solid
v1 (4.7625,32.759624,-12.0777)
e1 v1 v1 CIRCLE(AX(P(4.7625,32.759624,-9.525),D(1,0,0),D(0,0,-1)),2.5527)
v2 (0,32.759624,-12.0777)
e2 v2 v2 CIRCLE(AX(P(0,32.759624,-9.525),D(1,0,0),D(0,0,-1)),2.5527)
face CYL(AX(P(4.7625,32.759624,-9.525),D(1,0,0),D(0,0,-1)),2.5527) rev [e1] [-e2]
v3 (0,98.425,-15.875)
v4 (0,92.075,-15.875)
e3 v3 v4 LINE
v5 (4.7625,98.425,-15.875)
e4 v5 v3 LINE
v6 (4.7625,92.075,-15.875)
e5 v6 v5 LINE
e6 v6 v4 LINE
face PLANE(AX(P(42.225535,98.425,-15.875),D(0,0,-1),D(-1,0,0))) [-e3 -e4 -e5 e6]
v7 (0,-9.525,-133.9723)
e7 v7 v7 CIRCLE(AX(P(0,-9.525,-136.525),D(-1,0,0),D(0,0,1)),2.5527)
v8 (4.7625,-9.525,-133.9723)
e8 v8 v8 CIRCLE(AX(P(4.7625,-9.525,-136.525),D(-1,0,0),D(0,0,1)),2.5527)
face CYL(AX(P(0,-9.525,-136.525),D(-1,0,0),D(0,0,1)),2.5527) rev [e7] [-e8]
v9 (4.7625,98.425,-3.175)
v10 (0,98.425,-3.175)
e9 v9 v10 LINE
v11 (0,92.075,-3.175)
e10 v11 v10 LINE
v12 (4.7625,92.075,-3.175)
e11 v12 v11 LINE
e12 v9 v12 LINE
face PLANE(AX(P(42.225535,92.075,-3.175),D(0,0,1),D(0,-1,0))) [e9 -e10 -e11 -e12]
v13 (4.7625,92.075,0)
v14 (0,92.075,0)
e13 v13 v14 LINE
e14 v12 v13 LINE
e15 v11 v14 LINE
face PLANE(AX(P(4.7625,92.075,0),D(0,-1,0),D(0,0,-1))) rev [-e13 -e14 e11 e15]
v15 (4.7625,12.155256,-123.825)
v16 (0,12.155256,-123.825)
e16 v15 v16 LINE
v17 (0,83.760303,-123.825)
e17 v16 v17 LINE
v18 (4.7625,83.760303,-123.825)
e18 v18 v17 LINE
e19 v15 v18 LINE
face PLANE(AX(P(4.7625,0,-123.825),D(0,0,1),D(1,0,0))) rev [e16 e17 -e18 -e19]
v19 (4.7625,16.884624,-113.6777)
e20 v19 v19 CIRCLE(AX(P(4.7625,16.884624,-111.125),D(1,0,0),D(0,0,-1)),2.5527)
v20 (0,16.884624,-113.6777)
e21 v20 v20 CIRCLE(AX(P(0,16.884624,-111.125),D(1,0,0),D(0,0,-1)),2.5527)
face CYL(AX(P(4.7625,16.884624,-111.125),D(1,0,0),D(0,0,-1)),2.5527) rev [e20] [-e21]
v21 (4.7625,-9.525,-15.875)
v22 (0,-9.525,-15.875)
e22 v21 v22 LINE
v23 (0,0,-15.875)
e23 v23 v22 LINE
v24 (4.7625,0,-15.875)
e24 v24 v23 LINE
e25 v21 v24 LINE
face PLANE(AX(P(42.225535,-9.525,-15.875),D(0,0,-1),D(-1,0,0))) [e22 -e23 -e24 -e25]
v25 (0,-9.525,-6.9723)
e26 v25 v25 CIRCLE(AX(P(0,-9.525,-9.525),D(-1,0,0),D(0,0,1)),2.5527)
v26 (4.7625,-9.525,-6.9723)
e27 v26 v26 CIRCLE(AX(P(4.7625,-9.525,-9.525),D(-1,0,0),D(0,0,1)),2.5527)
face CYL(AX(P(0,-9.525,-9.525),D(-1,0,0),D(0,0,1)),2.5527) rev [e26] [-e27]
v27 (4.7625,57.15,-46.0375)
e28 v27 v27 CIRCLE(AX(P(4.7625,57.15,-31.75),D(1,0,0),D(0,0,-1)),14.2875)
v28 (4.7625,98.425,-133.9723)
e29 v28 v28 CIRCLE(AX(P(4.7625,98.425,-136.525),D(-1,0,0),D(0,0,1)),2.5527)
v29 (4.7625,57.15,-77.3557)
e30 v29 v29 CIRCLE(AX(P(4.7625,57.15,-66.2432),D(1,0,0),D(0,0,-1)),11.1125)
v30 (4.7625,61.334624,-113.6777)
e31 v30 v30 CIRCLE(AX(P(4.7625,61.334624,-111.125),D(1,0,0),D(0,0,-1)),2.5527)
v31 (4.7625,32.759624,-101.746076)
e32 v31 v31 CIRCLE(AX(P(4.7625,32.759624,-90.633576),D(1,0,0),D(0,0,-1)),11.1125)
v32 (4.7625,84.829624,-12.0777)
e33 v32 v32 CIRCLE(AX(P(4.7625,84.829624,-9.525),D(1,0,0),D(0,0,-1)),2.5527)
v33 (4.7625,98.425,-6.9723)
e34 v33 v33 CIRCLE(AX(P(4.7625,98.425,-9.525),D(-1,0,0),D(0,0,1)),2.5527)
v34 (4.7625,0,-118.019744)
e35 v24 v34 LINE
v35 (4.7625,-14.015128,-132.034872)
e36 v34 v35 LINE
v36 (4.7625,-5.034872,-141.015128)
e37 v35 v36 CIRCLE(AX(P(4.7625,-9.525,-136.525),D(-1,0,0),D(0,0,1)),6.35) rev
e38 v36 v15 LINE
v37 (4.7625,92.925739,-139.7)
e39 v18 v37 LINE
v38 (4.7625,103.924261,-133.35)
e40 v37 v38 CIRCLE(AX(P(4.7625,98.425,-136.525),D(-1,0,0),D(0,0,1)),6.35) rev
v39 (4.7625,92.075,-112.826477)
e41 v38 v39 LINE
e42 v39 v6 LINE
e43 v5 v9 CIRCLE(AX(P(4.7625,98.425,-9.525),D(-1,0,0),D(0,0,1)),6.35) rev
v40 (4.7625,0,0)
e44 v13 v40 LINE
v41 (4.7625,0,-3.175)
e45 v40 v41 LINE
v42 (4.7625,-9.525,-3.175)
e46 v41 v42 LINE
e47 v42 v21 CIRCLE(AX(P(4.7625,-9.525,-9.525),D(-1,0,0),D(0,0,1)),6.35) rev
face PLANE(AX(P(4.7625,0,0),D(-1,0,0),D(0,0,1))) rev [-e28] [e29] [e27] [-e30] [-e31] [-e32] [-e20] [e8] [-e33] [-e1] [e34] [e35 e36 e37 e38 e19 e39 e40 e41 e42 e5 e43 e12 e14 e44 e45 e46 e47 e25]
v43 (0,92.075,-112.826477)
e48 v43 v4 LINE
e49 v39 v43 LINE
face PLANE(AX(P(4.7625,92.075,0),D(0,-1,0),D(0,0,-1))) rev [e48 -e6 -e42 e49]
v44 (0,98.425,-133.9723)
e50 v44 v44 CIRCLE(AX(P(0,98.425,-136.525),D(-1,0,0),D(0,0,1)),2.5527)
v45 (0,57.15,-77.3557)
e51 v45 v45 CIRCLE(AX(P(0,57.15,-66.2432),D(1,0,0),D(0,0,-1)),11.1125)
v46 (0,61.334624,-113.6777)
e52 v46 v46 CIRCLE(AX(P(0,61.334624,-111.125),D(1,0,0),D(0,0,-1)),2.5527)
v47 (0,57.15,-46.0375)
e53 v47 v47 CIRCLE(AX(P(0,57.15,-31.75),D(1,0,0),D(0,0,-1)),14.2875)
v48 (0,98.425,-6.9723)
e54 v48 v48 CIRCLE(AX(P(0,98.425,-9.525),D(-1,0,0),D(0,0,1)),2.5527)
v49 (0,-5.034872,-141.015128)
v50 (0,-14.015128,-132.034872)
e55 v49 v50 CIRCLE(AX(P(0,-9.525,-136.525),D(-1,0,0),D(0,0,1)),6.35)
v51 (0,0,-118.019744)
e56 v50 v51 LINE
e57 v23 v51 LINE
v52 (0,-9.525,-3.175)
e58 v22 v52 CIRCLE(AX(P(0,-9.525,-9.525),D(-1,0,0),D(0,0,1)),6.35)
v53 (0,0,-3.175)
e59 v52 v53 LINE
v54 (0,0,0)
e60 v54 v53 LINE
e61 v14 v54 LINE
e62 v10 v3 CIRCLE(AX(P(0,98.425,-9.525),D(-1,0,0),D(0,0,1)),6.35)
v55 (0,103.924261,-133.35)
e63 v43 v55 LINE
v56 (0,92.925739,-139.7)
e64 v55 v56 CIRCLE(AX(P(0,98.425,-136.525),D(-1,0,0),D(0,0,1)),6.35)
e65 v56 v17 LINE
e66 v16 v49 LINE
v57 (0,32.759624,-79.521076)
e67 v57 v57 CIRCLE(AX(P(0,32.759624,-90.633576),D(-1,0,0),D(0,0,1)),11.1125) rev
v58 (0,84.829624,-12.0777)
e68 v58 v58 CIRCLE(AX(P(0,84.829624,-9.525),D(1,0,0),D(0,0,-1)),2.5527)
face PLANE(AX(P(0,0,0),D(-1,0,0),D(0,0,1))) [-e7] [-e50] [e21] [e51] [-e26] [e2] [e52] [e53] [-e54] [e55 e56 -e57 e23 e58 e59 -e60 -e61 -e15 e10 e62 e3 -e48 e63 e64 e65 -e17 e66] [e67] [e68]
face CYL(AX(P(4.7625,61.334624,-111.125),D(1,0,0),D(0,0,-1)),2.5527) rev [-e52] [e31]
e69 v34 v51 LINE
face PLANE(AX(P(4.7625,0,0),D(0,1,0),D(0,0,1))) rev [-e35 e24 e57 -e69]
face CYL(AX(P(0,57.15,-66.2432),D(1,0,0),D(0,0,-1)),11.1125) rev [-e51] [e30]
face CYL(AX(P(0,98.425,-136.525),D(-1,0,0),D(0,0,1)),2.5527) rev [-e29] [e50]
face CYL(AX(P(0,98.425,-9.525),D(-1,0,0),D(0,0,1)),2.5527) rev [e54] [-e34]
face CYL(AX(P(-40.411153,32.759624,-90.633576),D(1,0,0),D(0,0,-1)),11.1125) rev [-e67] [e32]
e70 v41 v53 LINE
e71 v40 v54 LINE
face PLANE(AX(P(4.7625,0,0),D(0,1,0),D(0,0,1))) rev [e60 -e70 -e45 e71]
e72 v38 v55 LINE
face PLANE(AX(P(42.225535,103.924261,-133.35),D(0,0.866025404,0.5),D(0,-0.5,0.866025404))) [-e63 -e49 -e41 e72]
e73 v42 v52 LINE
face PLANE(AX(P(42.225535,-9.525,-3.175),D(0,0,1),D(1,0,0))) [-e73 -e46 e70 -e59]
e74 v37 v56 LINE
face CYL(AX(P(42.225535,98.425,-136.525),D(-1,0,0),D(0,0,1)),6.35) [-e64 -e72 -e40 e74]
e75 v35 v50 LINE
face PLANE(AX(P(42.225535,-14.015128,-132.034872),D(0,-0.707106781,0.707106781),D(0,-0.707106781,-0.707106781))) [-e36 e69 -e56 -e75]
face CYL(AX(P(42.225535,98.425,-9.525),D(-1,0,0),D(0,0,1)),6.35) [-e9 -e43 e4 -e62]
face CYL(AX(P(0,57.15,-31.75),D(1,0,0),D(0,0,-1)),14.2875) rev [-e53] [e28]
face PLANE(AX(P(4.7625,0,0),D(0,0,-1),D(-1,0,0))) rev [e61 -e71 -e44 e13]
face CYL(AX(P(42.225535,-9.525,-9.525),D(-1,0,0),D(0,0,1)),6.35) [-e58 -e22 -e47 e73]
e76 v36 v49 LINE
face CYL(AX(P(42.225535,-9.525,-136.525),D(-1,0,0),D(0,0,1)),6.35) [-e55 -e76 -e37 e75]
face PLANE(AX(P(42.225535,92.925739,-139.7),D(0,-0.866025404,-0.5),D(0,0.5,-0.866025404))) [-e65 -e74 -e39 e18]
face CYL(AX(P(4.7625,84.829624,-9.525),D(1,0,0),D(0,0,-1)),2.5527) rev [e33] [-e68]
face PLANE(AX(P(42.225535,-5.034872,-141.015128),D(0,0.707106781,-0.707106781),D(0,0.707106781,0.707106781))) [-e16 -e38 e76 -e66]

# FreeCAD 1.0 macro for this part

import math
import FreeCAD as App
import Part
import Sketcher

V = App.Vector
Q = App.Units.Quantity


def add_polygon(sketch, points):
    """Adds a closed chain of lines whose ends are joined by coincident constraints."""
    first, n = sketch.GeometryCount, len(points)
    for a, b in zip(points, points[1:] + points[:1]):
        sketch.addGeometry(Part.LineSegment(App.Vector(*a, 0), App.Vector(*b, 0)), False)
    for i in range(n):
        sketch.addConstraint(Sketcher.Constraint("Coincident", first + i, 2, first + (i + 1) % n, 1))

doc = App.newDocument("Part")
body = doc.addObject("PartDesign::Body", "Body")

# Sketch on YZ plane
sketch1 = body.newObject("Sketcher::SketchObject", "Sketch")
sketch1.AttachmentSupport = (doc.getObject("YZ_Plane"), [""])
sketch1.MapMode = "FlatFace"
add_polygon(sketch1, [(92.075, 0), (0, 0), (0, -123.825), (92.075, -123.825)])  # lines 0-3
sketch1.addConstraint(Sketcher.Constraint("Horizontal", 0))
sketch1.addConstraint(Sketcher.Constraint("Vertical", 1))
sketch1.addConstraint(Sketcher.Constraint("Horizontal", 2))
sketch1.addConstraint(Sketcher.Constraint("Vertical", 3))
sketch1.addConstraint(Sketcher.Constraint("Coincident", 0, 2, -1, 1))
sketch1.addConstraint(Sketcher.Constraint("DistanceX", 0, 2, 0, 1, Q("3.625 in")))
sketch1.addConstraint(Sketcher.Constraint("DistanceY", 1, 2, 1, 1, Q("4.875 in")))
pad1 = body.newObject("PartDesign::Pad", "Pad")
pad1.Profile = sketch1
pad1.Length = Q("0.1875 in")

# Sketch on YZ plane
sketch2 = body.newObject("Sketcher::SketchObject", "Sketch001")
sketch2.AttachmentSupport = (doc.getObject("YZ_Plane"), [""])
sketch2.MapMode = "FlatFace"
sketch2.AttachmentOffset = App.Placement(V(0, 0, 0.1875 * 25.4), App.Rotation())
sketch2.addGeometry(Part.Circle(V(57.15, -66.2432, 0), V(0, 0, 1), 11.1125), False)
sketch2.addGeometry(Part.Circle(V(57.15, -31.75, 0), V(0, 0, 1), 11.1125), False)
sketch2.addGeometry(Part.Circle(V(32.759624, -90.633576, 0), V(0, 0, 1), 14.2875), False)
sketch2.addConstraint(Sketcher.Constraint("Equal", 0, 1))
sketch2.addConstraint(Sketcher.Constraint("Vertical", 0, 3, 1, 3))
sketch2.addConstraint(Sketcher.Constraint("Diameter", 0, Q("0.875 in")))
sketch2.addConstraint(Sketcher.Constraint("Diameter", 2, Q("1.125 in")))
sketch2.addConstraint(Sketcher.Constraint("DistanceX", -1, 1, 0, 3, Q("2.25 in")))
sketch2.addConstraint(Sketcher.Constraint("DistanceY", 1, 3, -1, 1, Q("1.25 in")))
sketch2.addConstraint(Sketcher.Constraint("DistanceY", 0, 3, -1, 1, Q("2.608 in")))
sketch2.addConstraint(Sketcher.Constraint("DistanceX", -1, 1, 2, 3, 32.759624))
sketch2.addConstraint(Sketcher.Constraint("DistanceY", 2, 3, -1, 1, 90.633576))
pocket1 = body.newObject("PartDesign::Pocket", "Pocket")
pocket1.Profile = sketch2
pocket1.Type = "ThroughAll"

# Sketch on YZ plane
sketch3 = body.newObject("Sketcher::SketchObject", "Sketch002")
sketch3.AttachmentSupport = (doc.getObject("YZ_Plane"), [""])
sketch3.MapMode = "FlatFace"
sketch3.AttachmentOffset = App.Placement(V(0, 0, 0.1875 * 25.4), App.Rotation())
sketch3.addGeometry(Part.Circle(V(84.829624, -9.525, 0), V(0, 0, 1), 2.5527), False)
sketch3.addGeometry(Part.Circle(V(61.334624, -111.125, 0), V(0, 0, 1), 2.5527), False)
sketch3.addGeometry(Part.Circle(V(32.759624, -9.525, 0), V(0, 0, 1), 2.5527), False)
sketch3.addGeometry(Part.Circle(V(16.884624, -111.125, 0), V(0, 0, 1), 2.5527), False)
sketch3.addConstraint(Sketcher.Constraint("Equal", 0, 1))
sketch3.addConstraint(Sketcher.Constraint("Equal", 1, 2))
sketch3.addConstraint(Sketcher.Constraint("Equal", 2, 3))
sketch3.addConstraint(Sketcher.Constraint("Horizontal", 0, 3, 2, 3))
sketch3.addConstraint(Sketcher.Constraint("Horizontal", 1, 3, 3, 3))
sketch3.addConstraint(Sketcher.Constraint("Diameter", 0, Q("0.201 in")))
sketch3.addConstraint(Sketcher.Constraint("DistanceY", 1, 3, 0, 3, Q("4 in")))
sketch3.addConstraint(Sketcher.Constraint("DistanceX", 2, 3, 0, 3, Q("2.05 in")))
sketch3.addConstraint(Sketcher.Constraint("DistanceX", 3, 3, 1, 3, Q("1.75 in")))
sketch3.addConstraint(Sketcher.Constraint("DistanceY", 0, 3, -1, 1, Q("0.375 in")))
sketch3.addConstraint(Sketcher.Constraint("DistanceX", 1, 3, 0, 3, Q("0.925 in")))
sketch3.addConstraint(Sketcher.Constraint("DistanceX", -1, 1, 0, 3, 84.829624))
doc.recompute()
hole = body.newObject("PartDesign::Hole", "Hole")
hole.Profile = sketch3
hole.ThreadType = "None"
hole.Diameter = Q("0.201 in")
hole.DepthType = "ThroughAll"

# Sketch on YZ plane
sketch4 = body.newObject("Sketcher::SketchObject", "Sketch003")
sketch4.AttachmentSupport = (doc.getObject("YZ_Plane"), [""])
sketch4.MapMode = "FlatFace"
sketch4.AttachmentOffset = App.Placement(V(0, 0, 0.1875 * 25.4), App.Rotation())
sketch4.addGeometry(Part.Circle(V(57.15, -31.75, 0), V(0, 0, 1), 14.2875), False)
sketch4.addConstraint(Sketcher.Constraint("Diameter", 0, Q("1.125 in")))
sketch4.addConstraint(Sketcher.Constraint("DistanceX", -1, 1, 0, 3, Q("2.25 in")))
sketch4.addConstraint(Sketcher.Constraint("DistanceY", 0, 3, -1, 1, Q("1.25 in")))
pocket2 = body.newObject("PartDesign::Pocket", "Pocket001")
pocket2.Profile = sketch4
pocket2.Type = "ThroughAll"

# Sketch on YZ plane
sketch5 = body.newObject("Sketcher::SketchObject", "Sketch004")
sketch5.AttachmentSupport = (doc.getObject("YZ_Plane"), [""])
sketch5.MapMode = "FlatFace"
sketch5.AttachmentOffset = App.Placement(V(0, 0, 0.1875 * 25.4), App.Rotation())
sketch5.addGeometry(Part.Circle(V(32.759624, -90.633576, 0), V(0, 0, 1), 14.2875), False)
sketch5.addGeometry(Part.Circle(V(32.759624, -90.633576, 0), V(0, 0, 1), 11.1125), False)
sketch5.addConstraint(Sketcher.Constraint("Coincident", 1, 3, 0, 3))
sketch5.addConstraint(Sketcher.Constraint("Diameter", 0, Q("1.125 in")))
sketch5.addConstraint(Sketcher.Constraint("Diameter", 1, Q("0.875 in")))
sketch5.addConstraint(Sketcher.Constraint("DistanceX", -1, 1, 0, 3, 32.759624))
sketch5.addConstraint(Sketcher.Constraint("DistanceY", 0, 3, -1, 1, 90.633576))
pad2 = body.newObject("PartDesign::Pad", "Pad001")
pad2.Profile = sketch5
pad2.Length = Q("0.1875 in")
pad2.Reversed = True

# Sketch on YZ plane
sketch6 = body.newObject("Sketcher::SketchObject", "Sketch005")
sketch6.AttachmentSupport = (doc.getObject("YZ_Plane"), [""])
sketch6.MapMode = "FlatFace"
sketch6.addGeometry(Part.LineSegment(V(-14.015128, -132.034872, 0), V(0, -118.019744, 0)), False)
sketch6.addGeometry(Part.LineSegment(V(0, -118.019744, 0), V(0, -123.825, 0)), False)
sketch6.addGeometry(Part.LineSegment(V(0, -123.825, 0), V(12.155256, -123.825, 0)), False)
sketch6.addGeometry(Part.LineSegment(V(12.155256, -123.825, 0), V(-5.034872, -141.015128, 0)), False)
sketch6.addGeometry(Part.ArcOfCircle(Part.Circle(V(-9.525, -136.525, 0), V(0, 0, 1), 6.35), math.radians(135), math.radians(315)), False)
sketch6.addGeometry(Part.LineSegment(V(92.925739, -139.7, 0), V(83.760303, -123.825, 0)), False)
sketch6.addGeometry(Part.LineSegment(V(83.760303, -123.825, 0), V(92.075, -123.825, 0)), False)
sketch6.addGeometry(Part.LineSegment(V(92.075, -123.825, 0), V(92.075, -112.826477, 0)), False)
sketch6.addGeometry(Part.LineSegment(V(92.075, -112.826477, 0), V(103.924261, -133.35, 0)), False)
sketch6.addGeometry(Part.ArcOfCircle(Part.Circle(V(98.425, -136.525, 0), V(0, 0, 1), 6.35), math.radians(-150), math.radians(30)), False)
sketch6.addGeometry(Part.LineSegment(V(0, -15.875, 0), V(-9.525, -15.875, 0)), False)
sketch6.addGeometry(Part.ArcOfCircle(Part.Circle(V(-9.525, -9.525, 0), V(0, 0, 1), 6.35), math.radians(90), math.radians(270)), False)
sketch6.addGeometry(Part.LineSegment(V(-9.525, -3.175, 0), V(0, -3.175, 0)), False)
sketch6.addGeometry(Part.LineSegment(V(0, -3.175, 0), V(0, -15.875, 0)), False)
sketch6.addGeometry(Part.LineSegment(V(98.425, -15.875, 0), V(92.075, -15.875, 0)), False)
sketch6.addGeometry(Part.LineSegment(V(92.075, -15.875, 0), V(92.075, -3.175, 0)), False)
sketch6.addGeometry(Part.LineSegment(V(92.075, -3.175, 0), V(98.425, -3.175, 0)), False)
sketch6.addGeometry(Part.ArcOfCircle(Part.Circle(V(98.425, -9.525, 0), V(0, 0, 1), 6.35), math.radians(-90), math.radians(90)), False)
sketch6.addConstraint(Sketcher.Constraint("Coincident", 0, 2, 1, 1))
sketch6.addConstraint(Sketcher.Constraint("Coincident", 1, 2, 2, 1))
sketch6.addConstraint(Sketcher.Constraint("Coincident", 2, 2, 3, 1))
sketch6.addConstraint(Sketcher.Constraint("Tangent", 3, 2, 4, 2))
sketch6.addConstraint(Sketcher.Constraint("Tangent", 4, 1, 0, 1))
sketch6.addConstraint(Sketcher.Constraint("Coincident", 5, 2, 6, 1))
sketch6.addConstraint(Sketcher.Constraint("Coincident", 6, 2, 7, 1))
sketch6.addConstraint(Sketcher.Constraint("Coincident", 7, 2, 8, 1))
sketch6.addConstraint(Sketcher.Constraint("Tangent", 8, 2, 9, 2))
sketch6.addConstraint(Sketcher.Constraint("Tangent", 9, 1, 5, 1))
sketch6.addConstraint(Sketcher.Constraint("Tangent", 10, 2, 11, 2))
sketch6.addConstraint(Sketcher.Constraint("Tangent", 11, 1, 12, 1))
sketch6.addConstraint(Sketcher.Constraint("Coincident", 12, 2, 13, 1))
sketch6.addConstraint(Sketcher.Constraint("Coincident", 13, 2, 10, 1))
sketch6.addConstraint(Sketcher.Constraint("Coincident", 14, 2, 15, 1))
sketch6.addConstraint(Sketcher.Constraint("Coincident", 15, 2, 16, 1))
sketch6.addConstraint(Sketcher.Constraint("Tangent", 16, 2, 17, 2))
sketch6.addConstraint(Sketcher.Constraint("Tangent", 17, 1, 14, 1))
sketch6.addConstraint(Sketcher.Constraint("Vertical", 1))
sketch6.addConstraint(Sketcher.Constraint("Horizontal", 2))
sketch6.addConstraint(Sketcher.Constraint("Horizontal", 6))
sketch6.addConstraint(Sketcher.Constraint("Vertical", 7))
sketch6.addConstraint(Sketcher.Constraint("Horizontal", 10))
sketch6.addConstraint(Sketcher.Constraint("Horizontal", 12))
sketch6.addConstraint(Sketcher.Constraint("Vertical", 13))
sketch6.addConstraint(Sketcher.Constraint("Horizontal", 14))
sketch6.addConstraint(Sketcher.Constraint("Vertical", 15))
sketch6.addConstraint(Sketcher.Constraint("Horizontal", 16))
sketch6.addConstraint(Sketcher.Constraint("Equal", 4, 9))
sketch6.addConstraint(Sketcher.Constraint("Equal", 9, 11))
sketch6.addConstraint(Sketcher.Constraint("Equal", 11, 17))
sketch6.addConstraint(Sketcher.Constraint("PointOnObject", 0, 2, -2))
sketch6.addConstraint(Sketcher.Constraint("PointOnObject", 12, 2, -2))
sketch6.addConstraint(Sketcher.Constraint("Parallel", 0, 3))
sketch6.addConstraint(Sketcher.Constraint("Parallel", 5, 8))
sketch6.addConstraint(Sketcher.Constraint("Horizontal", 4, 3, 9, 3))
sketch6.addConstraint(Sketcher.Constraint("Horizontal", 11, 3, 17, 3))
sketch6.addConstraint(Sketcher.Constraint("Horizontal", 2, 2, 5, 2))
sketch6.addConstraint(Sketcher.Constraint("Vertical", 4, 3, 11, 3))
sketch6.addConstraint(Sketcher.Constraint("Vertical", 9, 3, 17, 3))
sketch6.addConstraint(Sketcher.Constraint("Vertical", 7, 2, 14, 2))
sketch6.addConstraint(Sketcher.Constraint("Radius", 4, Q("0.25 in")))
sketch6.addConstraint(Sketcher.Constraint("Angle", 0, Q("45 deg")))
sketch6.addConstraint(Sketcher.Constraint("Angle", 5, Q("120 deg")))
sketch6.addConstraint(Sketcher.Constraint("DistanceY", 4, 3, 11, 3, Q("5 in")))
sketch6.addConstraint(Sketcher.Constraint("DistanceX", 10, 2, 14, 2, Q("4 in")))
sketch6.addConstraint(Sketcher.Constraint("DistanceX", 14, 2, 14, 1, Q("0.25 in")))
sketch6.addConstraint(Sketcher.Constraint("DistanceY", 9, 1, -1, 1, Q("5.5 in")))
sketch6.addConstraint(Sketcher.Constraint("DistanceY", 4, 3, 1, 2, Q("0.5 in")))
sketch6.addConstraint(Sketcher.Constraint("DistanceX", 10, 2, 10, 1, Q("0.375 in")))
pad3 = body.newObject("PartDesign::Pad", "Pad002")
pad3.Profile = sketch6
pad3.Length = Q("0.1875 in")

# Sketch on YZ plane
sketch7 = body.newObject("Sketcher::SketchObject", "Sketch006")
sketch7.AttachmentSupport = (doc.getObject("YZ_Plane"), [""])
sketch7.MapMode = "FlatFace"
sketch7.addGeometry(Part.Circle(V(-9.525, -136.525, 0), V(0, 0, 1), 2.5527), False)
sketch7.addGeometry(Part.Circle(V(98.425, -136.525, 0), V(0, 0, 1), 2.5527), False)
sketch7.addGeometry(Part.Circle(V(98.425, -9.525, 0), V(0, 0, 1), 2.5527), False)
sketch7.addGeometry(Part.Circle(V(-9.525, -9.525, 0), V(0, 0, 1), 2.5527), False)
sketch7.addConstraint(Sketcher.Constraint("Equal", 0, 1))
sketch7.addConstraint(Sketcher.Constraint("Equal", 1, 2))
sketch7.addConstraint(Sketcher.Constraint("Equal", 2, 3))
sketch7.addConstraint(Sketcher.Constraint("Horizontal", 0, 3, 1, 3))
sketch7.addConstraint(Sketcher.Constraint("Horizontal", 2, 3, 3, 3))
sketch7.addConstraint(Sketcher.Constraint("Vertical", 1, 3, 2, 3))
sketch7.addConstraint(Sketcher.Constraint("Vertical", 0, 3, 3, 3))
sketch7.addConstraint(Sketcher.Constraint("Diameter", 0, Q("0.201 in")))
sketch7.addConstraint(Sketcher.Constraint("DistanceY", 1, 3, 2, 3, Q("5 in")))
sketch7.addConstraint(Sketcher.Constraint("DistanceX", 0, 3, 1, 3, Q("4.25 in")))
sketch7.addConstraint(Sketcher.Constraint("DistanceX", 0, 3, -1, 1, Q("0.375 in")))
sketch7.addConstraint(Sketcher.Constraint("DistanceY", 0, 3, -1, 1, Q("5.375 in")))
doc.recompute()
hole2 = body.newObject("PartDesign::Hole", "Hole001")
hole2.Profile = sketch7
hole2.ThreadType = "None"
hole2.Diameter = Q("0.201 in")
hole2.DepthType = "ThroughAll"
hole2.Reversed = True

doc.recompute()
